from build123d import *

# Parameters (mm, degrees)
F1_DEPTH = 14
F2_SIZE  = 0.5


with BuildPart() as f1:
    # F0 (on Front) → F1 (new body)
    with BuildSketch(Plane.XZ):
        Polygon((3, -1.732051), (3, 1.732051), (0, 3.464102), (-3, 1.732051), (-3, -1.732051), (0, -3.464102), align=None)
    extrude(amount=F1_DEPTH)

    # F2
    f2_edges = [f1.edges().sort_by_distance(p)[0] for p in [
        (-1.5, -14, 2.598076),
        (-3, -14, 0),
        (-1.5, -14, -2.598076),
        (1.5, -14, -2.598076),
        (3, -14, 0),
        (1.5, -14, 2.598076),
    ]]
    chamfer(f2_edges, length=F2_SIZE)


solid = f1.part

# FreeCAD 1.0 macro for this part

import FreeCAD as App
import Part
import Sketcher
from FreeCAD import Vector
Q = App.Units.Quantity


def edges_at(feature, points):
    """Names of the edges that pass closest to the given points."""
    edges = feature.Shape.Edges
    near = lambda p: min(range(len(edges)), key=lambda i: edges[i].distToShape(Part.Vertex(*p))[0])
    return sorted({f"Edge{near(p) + 1}" for p in points})


def add_polygon(sketch, points):
    """Adds a closed chain of lines whose ends are joined by coincident constraints."""
    first, n = sketch.GeometryCount, len(points)
    for a, b in zip(points, points[1:] + points[:1]):
        sketch.addGeometry(Part.LineSegment(App.Vector(*a, 0), App.Vector(*b, 0)), False)
    for i in range(n):
        sketch.addConstraint(Sketcher.Constraint("Coincident", first + i, 2, first + (i + 1) % n, 1))

doc = App.newDocument("Part")
body = doc.addObject("PartDesign::Body", "Body")

# Sketch on XZ plane
sketch1 = body.newObject("Sketcher::SketchObject", "Sketch")
sketch1.AttachmentSupport = (doc.getObject("XZ_Plane"), [""])
sketch1.MapMode = "FlatFace"
add_polygon(sketch1, [(3, -1.7), (3, 1.7), (0, 3.5), (-3, 1.7), (-3, -1.7), (0, -3.5)])  # lines 0-5
sketch1.addConstraint([
    Sketcher.Constraint("Vertical", 0),
    Sketcher.Constraint("Vertical", 3),
    Sketcher.Constraint("Symmetric", 0, 2, 3, 2, -1, 1),
    Sketcher.Constraint("Symmetric", 1, 2, 4, 2, -1, 1),
    Sketcher.Constraint("PointOnObject", 1, 2, -2),
    Sketcher.Constraint("Parallel", 2, 5),
    Sketcher.Constraint("Horizontal", 0, 2, 2, 2),
    Sketcher.Constraint("Angle", 1, Q("149.999997 deg")),
    Sketcher.Constraint("DistanceX", -1, 1, 0, 2, 3.0),
    Sketcher.Constraint("DistanceY", 0, 1, 0, 2, 3.464102),
])
pad1 = body.newObject("PartDesign::Pad", "Pad")
pad1.Profile = sketch1
pad1.Length = 14
doc.recompute()

chamfer = body.newObject("PartDesign::Chamfer", "Chamfer")
chamfer.Base = (pad1, edges_at(pad1, [
    (-1.5, -14, 2.598),
    (-3, -14, 0),
    (-1.5, -14, -2.598),
    (1.5, -14, -2.598),
    (3, -14, 0),
    (1.5, -14, 2.598),
]))
chamfer.Size = 0.5

doc.recompute()
